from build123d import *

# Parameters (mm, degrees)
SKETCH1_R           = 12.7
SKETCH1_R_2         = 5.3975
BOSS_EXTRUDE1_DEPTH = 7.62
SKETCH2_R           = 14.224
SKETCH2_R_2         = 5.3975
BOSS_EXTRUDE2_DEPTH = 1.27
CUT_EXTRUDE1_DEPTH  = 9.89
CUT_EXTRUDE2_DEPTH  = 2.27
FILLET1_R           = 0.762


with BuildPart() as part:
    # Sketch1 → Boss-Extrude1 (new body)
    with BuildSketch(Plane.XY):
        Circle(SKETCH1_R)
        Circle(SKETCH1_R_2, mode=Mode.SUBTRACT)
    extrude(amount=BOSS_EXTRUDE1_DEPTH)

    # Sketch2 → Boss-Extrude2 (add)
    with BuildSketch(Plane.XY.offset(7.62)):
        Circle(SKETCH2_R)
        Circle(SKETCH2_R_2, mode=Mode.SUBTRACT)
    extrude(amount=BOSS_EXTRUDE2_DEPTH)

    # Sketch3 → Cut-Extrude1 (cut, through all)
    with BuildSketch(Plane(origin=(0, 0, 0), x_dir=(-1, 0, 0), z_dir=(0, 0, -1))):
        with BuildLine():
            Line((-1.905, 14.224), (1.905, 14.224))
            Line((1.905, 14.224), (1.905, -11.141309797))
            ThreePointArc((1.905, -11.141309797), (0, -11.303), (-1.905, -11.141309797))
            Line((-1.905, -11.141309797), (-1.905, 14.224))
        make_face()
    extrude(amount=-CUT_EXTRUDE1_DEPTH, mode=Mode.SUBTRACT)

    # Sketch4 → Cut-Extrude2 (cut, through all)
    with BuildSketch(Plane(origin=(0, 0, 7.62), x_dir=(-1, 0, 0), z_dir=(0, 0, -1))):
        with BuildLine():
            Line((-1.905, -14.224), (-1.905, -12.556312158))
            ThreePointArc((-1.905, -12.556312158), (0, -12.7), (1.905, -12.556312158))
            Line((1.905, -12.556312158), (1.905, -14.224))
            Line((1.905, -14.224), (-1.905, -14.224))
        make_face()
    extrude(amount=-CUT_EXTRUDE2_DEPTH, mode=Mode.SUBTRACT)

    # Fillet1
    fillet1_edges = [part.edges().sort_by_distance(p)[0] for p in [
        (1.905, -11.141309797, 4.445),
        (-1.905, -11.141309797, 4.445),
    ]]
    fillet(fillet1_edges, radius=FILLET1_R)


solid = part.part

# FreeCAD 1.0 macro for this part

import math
import FreeCAD as App
import Part
import Sketcher

V = App.Vector
Q = App.Units.Quantity


def edges_at(feature, points):
    """Names of the edges that pass closest to the given points."""
    edges = feature.Shape.Edges
    near = lambda p: min(range(len(edges)), key=lambda i: edges[i].distToShape(Part.Vertex(*p))[0])
    return sorted({f"Edge{near(p) + 1}" for p in points})

doc = App.newDocument("Part")
body = doc.addObject("PartDesign::Body", "Body")

sketch1 = body.newObject("Sketcher::SketchObject", "Sketch")
sketch1.AttachmentSupport = (doc.getObject("XY_Plane"), [""])
sketch1.MapMode = "FlatFace"
sketch1.addGeometry([
    Part.Circle(V(0, 0, 0), V(0, 0, 1), 12.7),
    Part.Circle(V(0, 0, 0), V(0, 0, 1), 5.3975),
], False)
sketch1.addConstraint([
    Sketcher.Constraint("Coincident", 0, 3, -1, 1),
    Sketcher.Constraint("Coincident", 1, 3, -1, 1),
    Sketcher.Constraint("Diameter", 0, Q("1 in")),
    Sketcher.Constraint("Diameter", 1, Q("0.425 in")),
])
pad1 = body.newObject("PartDesign::Pad", "Pad")
pad1.Profile = sketch1
pad1.Length = Q("0.3 in")

sketch2 = body.newObject("Sketcher::SketchObject", "Sketch001")
sketch2.AttachmentSupport = (doc.getObject("XY_Plane"), [""])
sketch2.MapMode = "FlatFace"
sketch2.AttachmentOffset = App.Placement(V(0, 0, 0.3 * 25.4), App.Rotation())
sketch2.addGeometry([
    Part.Circle(V(0, 0, 0), V(0, 0, 1), 14.224),
    Part.Circle(V(0, 0, 0), V(0, 0, 1), 5.3975),
], False)
sketch2.addConstraint([
    Sketcher.Constraint("Coincident", 0, 3, -1, 1),
    Sketcher.Constraint("Coincident", 1, 3, -1, 1),
    Sketcher.Constraint("Diameter", 0, Q("1.12 in")),
    Sketcher.Constraint("Diameter", 1, Q("0.425 in")),
])
pad2 = body.newObject("PartDesign::Pad", "Pad001")
pad2.Profile = sketch2
pad2.Length = Q("0.05 in")

sketch3 = body.newObject("Sketcher::SketchObject", "Sketch002")
sketch3.AttachmentSupport = (doc.getObject("XY_Plane"), [""])
sketch3.MapMode = "FlatFace"
sketch3.addGeometry([
    Part.LineSegment(V(-1.905, 14.224, 0), V(1.905, 14.224, 0)),
    Part.LineSegment(V(1.905, 14.224, 0), V(1.905, -11.14131, 0)),
    Part.ArcOfCircle(Part.Circle(V(0, 0, 0), V(0, 0, 1), 11.303), math.radians(-99.702903), math.radians(-80.297097)),
    Part.LineSegment(V(-1.905, -11.14131, 0), V(-1.905, 14.224, 0)),
], False)
sketch3.addConstraint([
    Sketcher.Constraint("Coincident", 0, 2, 1, 1),
    Sketcher.Constraint("Coincident", 1, 2, 2, 2),
    Sketcher.Constraint("Coincident", 2, 1, 3, 1),
    Sketcher.Constraint("Coincident", 3, 2, 0, 1),
    Sketcher.Constraint("Horizontal", 0),
    Sketcher.Constraint("Vertical", 1),
    Sketcher.Constraint("Vertical", 3),
    Sketcher.Constraint("Coincident", 2, 3, -1, 1),
    Sketcher.Constraint("Horizontal", 1, 2, 2, 1),
    Sketcher.Constraint("Radius", 2, Q("0.445 in")),
    Sketcher.Constraint("DistanceX", 0, 1, 0, 2, Q("0.15 in")),
    Sketcher.Constraint("DistanceY", -1, 1, 0, 2, Q("0.56 in")),
])
pocket1 = body.newObject("PartDesign::Pocket", "Pocket")
pocket1.Profile = sketch3
pocket1.Type = "ThroughAll"
pocket1.Reversed = True

sketch4 = body.newObject("Sketcher::SketchObject", "Sketch003")
sketch4.AttachmentSupport = (doc.getObject("XY_Plane"), [""])
sketch4.MapMode = "FlatFace"
sketch4.AttachmentOffset = App.Placement(V(0, 0, 0.3 * 25.4), App.Rotation())
sketch4.addGeometry([
    Part.LineSegment(V(1.905, -12.556312, 0), V(1.905, -14.224, 0)),
    Part.LineSegment(V(1.905, -14.224, 0), V(-1.905, -14.224, 0)),
    Part.LineSegment(V(-1.905, -14.224, 0), V(-1.905, -12.556312, 0)),
    Part.ArcOfCircle(Part.Circle(V(0, 0, 0), V(0, 0, 1), 12.7), math.radians(-98.626927), math.radians(-81.373073)),
], False)
sketch4.addConstraint([
    Sketcher.Constraint("Coincident", 0, 2, 1, 1),
    Sketcher.Constraint("Coincident", 1, 2, 2, 1),
    Sketcher.Constraint("Coincident", 2, 2, 3, 1),
    Sketcher.Constraint("Coincident", 3, 2, 0, 1),
    Sketcher.Constraint("Vertical", 0),
    Sketcher.Constraint("Horizontal", 1),
    Sketcher.Constraint("Vertical", 2),
    Sketcher.Constraint("Coincident", 3, 3, -1, 1),
    Sketcher.Constraint("Horizontal", 2, 2, 3, 2),
    Sketcher.Constraint("Radius", 3, Q("0.5 in")),
    Sketcher.Constraint("DistanceX", 1, 2, 1, 1, Q("0.15 in")),
    Sketcher.Constraint("DistanceY", 0, 2, -1, 1, Q("0.56 in")),
])
pocket2 = body.newObject("PartDesign::Pocket", "Pocket001")
pocket2.Profile = sketch4
pocket2.Type = "ThroughAll"
pocket2.Reversed = True
doc.recompute()

fillet = body.newObject("PartDesign::Fillet", "Fillet")
fillet.Base = (pocket2, edges_at(pocket2, [(1.905, -11.141, 4.445), (-1.905, -11.141, 4.445)]))
fillet.Radius = Q("0.03 in")

doc.recompute()
